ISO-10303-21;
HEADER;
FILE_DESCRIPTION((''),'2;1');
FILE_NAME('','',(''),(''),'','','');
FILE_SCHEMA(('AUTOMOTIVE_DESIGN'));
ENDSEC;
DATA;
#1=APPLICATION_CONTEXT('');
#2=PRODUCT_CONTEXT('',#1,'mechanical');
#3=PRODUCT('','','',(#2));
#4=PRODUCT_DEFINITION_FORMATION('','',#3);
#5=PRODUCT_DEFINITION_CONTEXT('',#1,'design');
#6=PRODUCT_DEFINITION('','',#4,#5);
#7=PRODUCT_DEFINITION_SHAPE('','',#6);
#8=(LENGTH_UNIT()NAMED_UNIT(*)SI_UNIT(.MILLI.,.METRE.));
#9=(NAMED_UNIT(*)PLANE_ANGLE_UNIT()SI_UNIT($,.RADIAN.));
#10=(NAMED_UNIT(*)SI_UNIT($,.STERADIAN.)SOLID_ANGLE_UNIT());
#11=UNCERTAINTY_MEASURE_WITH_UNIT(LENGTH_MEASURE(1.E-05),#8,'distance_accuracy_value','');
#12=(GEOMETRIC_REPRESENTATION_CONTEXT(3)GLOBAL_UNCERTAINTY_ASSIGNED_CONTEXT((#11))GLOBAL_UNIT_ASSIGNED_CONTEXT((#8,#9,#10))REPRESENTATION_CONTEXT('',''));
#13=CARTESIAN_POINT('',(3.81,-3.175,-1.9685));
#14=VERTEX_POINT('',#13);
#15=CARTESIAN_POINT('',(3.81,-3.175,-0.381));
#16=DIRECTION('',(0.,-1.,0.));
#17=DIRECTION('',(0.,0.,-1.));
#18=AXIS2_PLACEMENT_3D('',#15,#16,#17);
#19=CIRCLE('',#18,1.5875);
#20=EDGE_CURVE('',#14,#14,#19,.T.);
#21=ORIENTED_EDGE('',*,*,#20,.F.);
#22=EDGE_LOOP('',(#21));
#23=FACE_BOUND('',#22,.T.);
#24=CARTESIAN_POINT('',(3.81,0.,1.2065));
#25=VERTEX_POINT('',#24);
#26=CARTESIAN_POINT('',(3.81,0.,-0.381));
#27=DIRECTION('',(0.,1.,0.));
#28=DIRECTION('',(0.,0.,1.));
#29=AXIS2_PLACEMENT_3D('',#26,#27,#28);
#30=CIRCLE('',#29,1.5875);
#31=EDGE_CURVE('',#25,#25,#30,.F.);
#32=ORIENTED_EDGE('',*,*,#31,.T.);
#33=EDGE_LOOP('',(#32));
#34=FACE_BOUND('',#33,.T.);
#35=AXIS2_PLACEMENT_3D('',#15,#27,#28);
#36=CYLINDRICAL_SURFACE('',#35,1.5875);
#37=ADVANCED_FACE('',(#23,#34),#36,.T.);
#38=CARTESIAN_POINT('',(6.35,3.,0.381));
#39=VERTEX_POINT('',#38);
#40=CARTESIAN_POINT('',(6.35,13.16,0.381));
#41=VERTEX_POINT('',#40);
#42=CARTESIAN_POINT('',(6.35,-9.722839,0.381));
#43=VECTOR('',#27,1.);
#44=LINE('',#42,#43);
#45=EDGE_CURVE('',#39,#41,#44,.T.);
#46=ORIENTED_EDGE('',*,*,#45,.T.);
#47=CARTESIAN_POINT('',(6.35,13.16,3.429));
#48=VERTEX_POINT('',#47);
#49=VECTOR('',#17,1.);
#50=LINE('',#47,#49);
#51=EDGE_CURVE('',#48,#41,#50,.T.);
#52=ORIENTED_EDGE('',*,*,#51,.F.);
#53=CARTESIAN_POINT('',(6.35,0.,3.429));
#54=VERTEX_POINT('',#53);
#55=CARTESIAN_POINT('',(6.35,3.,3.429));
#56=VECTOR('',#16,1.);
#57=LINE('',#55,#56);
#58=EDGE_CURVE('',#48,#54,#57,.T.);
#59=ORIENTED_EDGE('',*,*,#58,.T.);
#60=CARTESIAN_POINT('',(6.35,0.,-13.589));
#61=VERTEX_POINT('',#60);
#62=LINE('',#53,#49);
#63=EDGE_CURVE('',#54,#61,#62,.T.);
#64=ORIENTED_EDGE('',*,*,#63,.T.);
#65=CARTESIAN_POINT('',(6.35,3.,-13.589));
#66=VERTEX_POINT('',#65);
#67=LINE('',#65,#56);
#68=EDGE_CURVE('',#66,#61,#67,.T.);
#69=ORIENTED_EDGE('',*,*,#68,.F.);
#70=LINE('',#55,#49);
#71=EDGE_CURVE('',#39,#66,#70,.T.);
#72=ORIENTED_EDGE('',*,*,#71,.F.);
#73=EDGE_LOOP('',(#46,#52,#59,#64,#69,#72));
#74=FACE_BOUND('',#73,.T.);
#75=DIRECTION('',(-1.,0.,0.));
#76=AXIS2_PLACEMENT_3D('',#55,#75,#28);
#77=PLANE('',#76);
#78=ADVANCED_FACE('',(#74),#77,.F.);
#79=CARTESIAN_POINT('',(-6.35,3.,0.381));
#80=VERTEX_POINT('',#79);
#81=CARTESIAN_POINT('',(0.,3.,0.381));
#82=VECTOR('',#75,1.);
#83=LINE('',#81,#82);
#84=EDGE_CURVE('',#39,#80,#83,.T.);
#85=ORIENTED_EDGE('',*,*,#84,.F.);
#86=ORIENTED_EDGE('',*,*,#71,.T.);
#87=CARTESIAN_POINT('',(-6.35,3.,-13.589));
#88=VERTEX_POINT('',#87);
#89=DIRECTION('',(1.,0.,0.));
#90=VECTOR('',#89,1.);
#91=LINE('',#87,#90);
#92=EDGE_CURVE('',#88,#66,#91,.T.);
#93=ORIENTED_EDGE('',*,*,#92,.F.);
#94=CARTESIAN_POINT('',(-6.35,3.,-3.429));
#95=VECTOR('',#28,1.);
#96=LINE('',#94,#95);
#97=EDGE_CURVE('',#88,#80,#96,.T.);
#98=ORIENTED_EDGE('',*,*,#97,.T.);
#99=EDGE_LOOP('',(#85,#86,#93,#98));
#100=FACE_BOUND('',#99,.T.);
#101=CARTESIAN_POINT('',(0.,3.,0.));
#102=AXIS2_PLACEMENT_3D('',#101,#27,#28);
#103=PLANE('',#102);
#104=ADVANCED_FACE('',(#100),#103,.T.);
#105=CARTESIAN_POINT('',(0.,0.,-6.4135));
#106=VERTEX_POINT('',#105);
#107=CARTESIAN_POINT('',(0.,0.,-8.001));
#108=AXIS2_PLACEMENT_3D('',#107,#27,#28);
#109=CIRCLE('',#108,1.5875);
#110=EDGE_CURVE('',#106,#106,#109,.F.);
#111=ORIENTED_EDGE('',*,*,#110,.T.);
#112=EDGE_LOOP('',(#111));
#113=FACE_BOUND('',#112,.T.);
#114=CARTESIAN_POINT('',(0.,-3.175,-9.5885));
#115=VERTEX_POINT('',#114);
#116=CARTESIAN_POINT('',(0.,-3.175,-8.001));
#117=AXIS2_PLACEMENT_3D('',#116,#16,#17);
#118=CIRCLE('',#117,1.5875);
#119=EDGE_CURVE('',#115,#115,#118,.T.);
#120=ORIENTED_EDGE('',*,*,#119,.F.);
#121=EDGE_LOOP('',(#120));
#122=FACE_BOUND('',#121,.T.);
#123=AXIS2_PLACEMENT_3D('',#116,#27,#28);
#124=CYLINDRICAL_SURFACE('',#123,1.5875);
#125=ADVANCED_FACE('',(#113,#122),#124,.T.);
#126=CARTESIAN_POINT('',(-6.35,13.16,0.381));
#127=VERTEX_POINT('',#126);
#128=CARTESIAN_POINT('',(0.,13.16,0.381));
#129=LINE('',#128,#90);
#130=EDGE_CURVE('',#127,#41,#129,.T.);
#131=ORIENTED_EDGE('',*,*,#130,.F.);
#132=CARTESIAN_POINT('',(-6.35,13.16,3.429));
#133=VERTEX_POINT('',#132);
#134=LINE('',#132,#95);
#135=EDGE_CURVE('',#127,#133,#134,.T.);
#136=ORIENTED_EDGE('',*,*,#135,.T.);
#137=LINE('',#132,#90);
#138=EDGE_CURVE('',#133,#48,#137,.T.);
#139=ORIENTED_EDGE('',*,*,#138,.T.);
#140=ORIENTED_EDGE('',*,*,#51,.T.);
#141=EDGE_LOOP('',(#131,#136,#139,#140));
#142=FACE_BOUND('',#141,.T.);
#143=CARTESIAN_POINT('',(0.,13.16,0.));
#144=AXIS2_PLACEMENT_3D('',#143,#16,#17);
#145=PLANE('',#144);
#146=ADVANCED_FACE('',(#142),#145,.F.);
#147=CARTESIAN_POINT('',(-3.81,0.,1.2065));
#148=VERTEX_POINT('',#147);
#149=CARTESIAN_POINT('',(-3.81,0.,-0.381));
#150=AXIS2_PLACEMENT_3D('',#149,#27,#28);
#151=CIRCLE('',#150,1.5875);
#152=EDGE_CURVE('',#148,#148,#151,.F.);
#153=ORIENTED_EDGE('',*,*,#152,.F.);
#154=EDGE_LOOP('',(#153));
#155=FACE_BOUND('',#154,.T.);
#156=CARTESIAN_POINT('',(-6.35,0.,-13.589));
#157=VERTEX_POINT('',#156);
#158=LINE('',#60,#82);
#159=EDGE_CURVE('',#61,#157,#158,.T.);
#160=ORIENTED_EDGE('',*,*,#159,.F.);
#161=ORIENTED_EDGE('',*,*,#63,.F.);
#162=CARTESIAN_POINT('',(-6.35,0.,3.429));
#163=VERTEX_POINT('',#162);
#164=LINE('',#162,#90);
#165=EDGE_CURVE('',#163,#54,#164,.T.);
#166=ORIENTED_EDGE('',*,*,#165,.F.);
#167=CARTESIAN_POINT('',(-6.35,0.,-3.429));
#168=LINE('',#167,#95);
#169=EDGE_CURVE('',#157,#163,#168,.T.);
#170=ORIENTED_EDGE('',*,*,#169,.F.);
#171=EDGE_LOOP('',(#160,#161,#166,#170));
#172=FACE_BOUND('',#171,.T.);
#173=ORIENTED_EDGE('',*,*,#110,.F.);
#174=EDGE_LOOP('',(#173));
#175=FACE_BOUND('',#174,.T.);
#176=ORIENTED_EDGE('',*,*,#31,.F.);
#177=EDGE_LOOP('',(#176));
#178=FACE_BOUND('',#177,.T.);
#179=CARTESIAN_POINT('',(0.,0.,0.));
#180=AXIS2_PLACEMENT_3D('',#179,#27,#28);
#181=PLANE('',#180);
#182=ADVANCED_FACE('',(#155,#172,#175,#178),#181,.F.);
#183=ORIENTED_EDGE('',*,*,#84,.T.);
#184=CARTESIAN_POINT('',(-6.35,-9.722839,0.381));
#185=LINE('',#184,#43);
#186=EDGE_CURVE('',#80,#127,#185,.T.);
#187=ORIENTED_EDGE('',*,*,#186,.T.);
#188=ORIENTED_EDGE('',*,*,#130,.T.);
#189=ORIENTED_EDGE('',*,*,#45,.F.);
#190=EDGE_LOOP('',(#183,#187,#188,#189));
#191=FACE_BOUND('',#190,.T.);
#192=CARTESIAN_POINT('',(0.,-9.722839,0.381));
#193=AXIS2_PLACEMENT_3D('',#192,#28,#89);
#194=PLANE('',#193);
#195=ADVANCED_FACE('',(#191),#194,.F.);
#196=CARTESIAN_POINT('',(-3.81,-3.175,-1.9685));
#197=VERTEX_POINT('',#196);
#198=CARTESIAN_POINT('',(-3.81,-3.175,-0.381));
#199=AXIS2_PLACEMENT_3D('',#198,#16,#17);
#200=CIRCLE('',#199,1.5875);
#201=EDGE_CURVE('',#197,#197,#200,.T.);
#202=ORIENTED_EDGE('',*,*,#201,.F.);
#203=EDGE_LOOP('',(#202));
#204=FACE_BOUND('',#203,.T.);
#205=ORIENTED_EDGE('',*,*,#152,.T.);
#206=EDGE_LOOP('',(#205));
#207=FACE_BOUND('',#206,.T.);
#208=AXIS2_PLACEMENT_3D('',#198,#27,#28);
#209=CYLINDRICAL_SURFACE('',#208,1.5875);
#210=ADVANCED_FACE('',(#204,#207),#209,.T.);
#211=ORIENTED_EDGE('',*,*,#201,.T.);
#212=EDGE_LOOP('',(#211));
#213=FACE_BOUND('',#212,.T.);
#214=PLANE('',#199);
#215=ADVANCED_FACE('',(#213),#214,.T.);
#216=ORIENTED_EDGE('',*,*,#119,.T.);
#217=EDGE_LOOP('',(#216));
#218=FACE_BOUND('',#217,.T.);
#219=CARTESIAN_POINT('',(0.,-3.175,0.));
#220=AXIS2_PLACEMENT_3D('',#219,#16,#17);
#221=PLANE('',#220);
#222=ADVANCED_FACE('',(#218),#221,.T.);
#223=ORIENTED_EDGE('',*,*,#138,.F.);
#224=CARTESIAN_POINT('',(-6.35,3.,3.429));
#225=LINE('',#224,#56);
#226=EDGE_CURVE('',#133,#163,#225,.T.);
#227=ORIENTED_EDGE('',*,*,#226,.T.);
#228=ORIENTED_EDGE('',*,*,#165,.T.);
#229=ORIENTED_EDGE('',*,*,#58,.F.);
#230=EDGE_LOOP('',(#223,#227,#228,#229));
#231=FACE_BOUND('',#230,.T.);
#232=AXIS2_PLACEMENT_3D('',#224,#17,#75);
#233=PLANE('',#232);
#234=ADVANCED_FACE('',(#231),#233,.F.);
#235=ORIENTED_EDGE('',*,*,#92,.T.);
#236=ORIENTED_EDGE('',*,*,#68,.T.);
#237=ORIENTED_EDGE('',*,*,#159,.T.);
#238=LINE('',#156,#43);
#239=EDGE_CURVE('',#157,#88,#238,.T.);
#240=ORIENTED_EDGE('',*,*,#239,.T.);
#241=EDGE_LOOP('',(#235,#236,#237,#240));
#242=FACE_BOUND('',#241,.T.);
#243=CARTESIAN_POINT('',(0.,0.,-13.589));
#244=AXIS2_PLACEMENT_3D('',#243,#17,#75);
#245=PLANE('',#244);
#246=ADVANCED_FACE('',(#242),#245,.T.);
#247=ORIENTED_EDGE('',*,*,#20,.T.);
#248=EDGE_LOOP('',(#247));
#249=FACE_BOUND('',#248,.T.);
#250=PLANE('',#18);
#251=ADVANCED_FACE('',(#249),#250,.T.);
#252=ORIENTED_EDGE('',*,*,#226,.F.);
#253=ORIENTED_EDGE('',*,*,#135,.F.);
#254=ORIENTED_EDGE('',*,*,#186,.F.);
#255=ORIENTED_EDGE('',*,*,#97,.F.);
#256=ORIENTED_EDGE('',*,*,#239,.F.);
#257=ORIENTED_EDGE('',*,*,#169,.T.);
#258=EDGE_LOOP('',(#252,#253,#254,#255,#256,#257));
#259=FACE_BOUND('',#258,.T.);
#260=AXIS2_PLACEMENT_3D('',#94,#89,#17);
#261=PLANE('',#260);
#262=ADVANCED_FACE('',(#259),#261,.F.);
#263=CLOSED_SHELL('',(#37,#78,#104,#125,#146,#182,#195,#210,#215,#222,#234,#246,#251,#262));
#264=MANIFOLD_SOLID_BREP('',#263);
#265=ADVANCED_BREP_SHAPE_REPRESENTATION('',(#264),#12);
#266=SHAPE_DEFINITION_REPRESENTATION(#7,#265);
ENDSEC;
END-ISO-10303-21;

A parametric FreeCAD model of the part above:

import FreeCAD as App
import Part
import Sketcher

V = App.Vector
Q = App.Units.Quantity


def add_polygon(sketch, points):
    """Adds a closed chain of lines whose ends are joined by coincident constraints."""
    first, n = sketch.GeometryCount, len(points)
    for a, b in zip(points, points[1:] + points[:1]):
        sketch.addGeometry(Part.LineSegment(App.Vector(*a, 0), App.Vector(*b, 0)), False)
    for i in range(n):
        sketch.addConstraint(Sketcher.Constraint("Coincident", first + i, 2, first + (i + 1) % n, 1))

doc = App.newDocument("Part")
body = doc.addObject("PartDesign::Body", "Body")

sketch1 = body.newObject("Sketcher::SketchObject", "Sketch")
sketch1.AttachmentSupport = (doc.getObject("XZ_Plane"), [""])
sketch1.MapMode = "FlatFace"
add_polygon(sketch1, [(-6, -3), (-6, 3), (6, 3), (6, -3)])
sketch1.addConstraint(Sketcher.Constraint("Vertical", 0))
sketch1.addConstraint(Sketcher.Constraint("Horizontal", 1))
sketch1.addConstraint(Sketcher.Constraint("Vertical", 2))
sketch1.addConstraint(Sketcher.Constraint("Horizontal", 3))
sketch1.addConstraint(Sketcher.Constraint("Symmetric", 0, 2, 2, 2, -1, 1))
sketch1.addConstraint(Sketcher.Constraint("DistanceX", 1, 1, 1, 2, Q("0.5 in")))
sketch1.addConstraint(Sketcher.Constraint("DistanceY", 0, 1, 0, 2, Q("0.27 in")))
pad1 = body.newObject("PartDesign::Pad", "Pad")
pad1.Profile = sketch1
pad1.Length = 3
pad1.Reversed = True

sketch2 = body.newObject("Sketcher::SketchObject", "Sketch001")
sketch2.AttachmentSupport = (doc.getObject("XZ_Plane"), [""])
sketch2.MapMode = "FlatFace"
sketch2.addGeometry(Part.Circle(V(3.8, -0.4, 0), V(0, 0, 1), 1.6), False)
sketch2.addGeometry(Part.Circle(V(-3.8, -0.4, 0), V(0, 0, 1), 1.6), False)
sketch2.addConstraint(Sketcher.Constraint("Equal", 0, 1))
sketch2.addConstraint(Sketcher.Constraint("Symmetric", 0, 3, 1, 3, -2))
sketch2.addConstraint(Sketcher.Constraint("Diameter", 0, Q("0.125 in")))
sketch2.addConstraint(Sketcher.Constraint("DistanceX", 1, 3, 0, 3, Q("0.3 in")))
sketch2.addConstraint(Sketcher.Constraint("DistanceY", 0, 3, -1, 1, Q("0.015 in")))
pad2 = body.newObject("PartDesign::Pad", "Pad001")
pad2.Profile = sketch2
pad2.Length = Q("0.125 in")

sketch3 = body.newObject("Sketcher::SketchObject", "Sketch002")
sketch3.AttachmentSupport = (doc.getObject("XZ_Plane"), [""])
sketch3.MapMode = "FlatFace"
sketch3.AttachmentOffset = App.Placement(V(0, 0, -3), App.Rotation())
add_polygon(sketch3, [(-6.3, -0.4), (-6.3, 3.4), (6.3, 3.4), (6.3, -0.4)])
sketch3.addConstraint(Sketcher.Constraint("Vertical", 0))
sketch3.addConstraint(Sketcher.Constraint("Horizontal", 1))
sketch3.addConstraint(Sketcher.Constraint("Vertical", 2))
sketch3.addConstraint(Sketcher.Constraint("Horizontal", 3))
sketch3.addConstraint(Sketcher.Constraint("DistanceX", 1, 1, 1, 2, Q("0.5 in")))
sketch3.addConstraint(Sketcher.Constraint("DistanceY", 0, 1, 0, 2, Q("0.15 in")))
sketch3.addConstraint(Sketcher.Constraint("DistanceX", 0, 2, -1, 1, Q("0.25 in")))
sketch3.addConstraint(Sketcher.Constraint("DistanceY", -1, 1, 0, 2, Q("0.135 in")))
pad3 = body.newObject("PartDesign::Pad", "Pad002")
pad3.Profile = sketch3
pad3.Length = Q("0.4 in")
pad3.Reversed = True

sketch4 = body.newObject("Sketcher::SketchObject", "Sketch003")
sketch4.AttachmentSupport = (doc.getObject("XY_Plane"), [""])
sketch4.MapMode = "FlatFace"
sketch4.AttachmentOffset = App.Placement(V(0, 0, -0.135 * 25.4), App.Rotation())
add_polygon(sketch4, [(6.3, 3), (6.3, 0), (-6.3, 0), (-6.3, 3)])
sketch4.addConstraint(Sketcher.Constraint("Vertical", 0))
sketch4.addConstraint(Sketcher.Constraint("Horizontal", 1))
sketch4.addConstraint(Sketcher.Constraint("Vertical", 2))
sketch4.addConstraint(Sketcher.Constraint("Horizontal", 3))
sketch4.addConstraint(Sketcher.Constraint("Symmetric", 0, 2, 1, 2, -1, 1))
sketch4.addConstraint(Sketcher.Constraint("DistanceX", 1, 2, 1, 1, Q("0.5 in")))
sketch4.addConstraint(Sketcher.Constraint("DistanceY", 0, 2, 0, 1, 3.0))
pad4 = body.newObject("PartDesign::Pad", "Pad003")
pad4.Profile = sketch4
pad4.Length = Q("0.4 in")
pad4.Reversed = True

sketch5 = body.newObject("Sketcher::SketchObject", "Sketch004")
sketch5.AttachmentSupport = (doc.getObject("XZ_Plane"), [""])
sketch5.MapMode = "FlatFace"
sketch5.addGeometry(Part.Circle(V(0, -8, 0), V(0, 0, 1), 1.6), False)
sketch5.addConstraint(Sketcher.Constraint("PointOnObject", 0, 3, -2))
sketch5.addConstraint(Sketcher.Constraint("Diameter", 0, Q("0.125 in")))
sketch5.addConstraint(Sketcher.Constraint("DistanceY", 0, 3, -1, 1, Q("0.315 in")))
pad5 = body.newObject("PartDesign::Pad", "Pad004")
pad5.Profile = sketch5
pad5.Length = Q("0.125 in")

sketch6 = body.newObject("Sketcher::SketchObject", "Sketch005")
sketch6.AttachmentSupport = (doc.getObject("XZ_Plane"), [""])
sketch6.MapMode = "FlatFace"
sketch6.AttachmentOffset = App.Placement(V(0, 0, -13.16), App.Rotation())
add_polygon(sketch6, [(-6.3, -0.4), (-6.3, 0.4), (6.3, 0.4), (6.3, -0.4)])
sketch6.addConstraint(Sketcher.Constraint("Vertical", 0))
sketch6.addConstraint(Sketcher.Constraint("Horizontal", 1))
sketch6.addConstraint(Sketcher.Constraint("Vertical", 2))
sketch6.addConstraint(Sketcher.Constraint("Horizontal", 3))
sketch6.addConstraint(Sketcher.Constraint("Symmetric", 0, 2, 2, 2, -1, 1))
sketch6.addConstraint(Sketcher.Constraint("DistanceX", 1, 1, 1, 2, Q("0.5 in")))
sketch6.addConstraint(Sketcher.Constraint("DistanceY", 0, 1, 0, 2, Q("0.03 in")))
pocket1 = body.newObject("PartDesign::Pocket", "Pocket")
pocket1.Profile = sketch6
pocket1.Length = Q("0.4 in")
pocket1.Reversed = True

doc.recompute()
